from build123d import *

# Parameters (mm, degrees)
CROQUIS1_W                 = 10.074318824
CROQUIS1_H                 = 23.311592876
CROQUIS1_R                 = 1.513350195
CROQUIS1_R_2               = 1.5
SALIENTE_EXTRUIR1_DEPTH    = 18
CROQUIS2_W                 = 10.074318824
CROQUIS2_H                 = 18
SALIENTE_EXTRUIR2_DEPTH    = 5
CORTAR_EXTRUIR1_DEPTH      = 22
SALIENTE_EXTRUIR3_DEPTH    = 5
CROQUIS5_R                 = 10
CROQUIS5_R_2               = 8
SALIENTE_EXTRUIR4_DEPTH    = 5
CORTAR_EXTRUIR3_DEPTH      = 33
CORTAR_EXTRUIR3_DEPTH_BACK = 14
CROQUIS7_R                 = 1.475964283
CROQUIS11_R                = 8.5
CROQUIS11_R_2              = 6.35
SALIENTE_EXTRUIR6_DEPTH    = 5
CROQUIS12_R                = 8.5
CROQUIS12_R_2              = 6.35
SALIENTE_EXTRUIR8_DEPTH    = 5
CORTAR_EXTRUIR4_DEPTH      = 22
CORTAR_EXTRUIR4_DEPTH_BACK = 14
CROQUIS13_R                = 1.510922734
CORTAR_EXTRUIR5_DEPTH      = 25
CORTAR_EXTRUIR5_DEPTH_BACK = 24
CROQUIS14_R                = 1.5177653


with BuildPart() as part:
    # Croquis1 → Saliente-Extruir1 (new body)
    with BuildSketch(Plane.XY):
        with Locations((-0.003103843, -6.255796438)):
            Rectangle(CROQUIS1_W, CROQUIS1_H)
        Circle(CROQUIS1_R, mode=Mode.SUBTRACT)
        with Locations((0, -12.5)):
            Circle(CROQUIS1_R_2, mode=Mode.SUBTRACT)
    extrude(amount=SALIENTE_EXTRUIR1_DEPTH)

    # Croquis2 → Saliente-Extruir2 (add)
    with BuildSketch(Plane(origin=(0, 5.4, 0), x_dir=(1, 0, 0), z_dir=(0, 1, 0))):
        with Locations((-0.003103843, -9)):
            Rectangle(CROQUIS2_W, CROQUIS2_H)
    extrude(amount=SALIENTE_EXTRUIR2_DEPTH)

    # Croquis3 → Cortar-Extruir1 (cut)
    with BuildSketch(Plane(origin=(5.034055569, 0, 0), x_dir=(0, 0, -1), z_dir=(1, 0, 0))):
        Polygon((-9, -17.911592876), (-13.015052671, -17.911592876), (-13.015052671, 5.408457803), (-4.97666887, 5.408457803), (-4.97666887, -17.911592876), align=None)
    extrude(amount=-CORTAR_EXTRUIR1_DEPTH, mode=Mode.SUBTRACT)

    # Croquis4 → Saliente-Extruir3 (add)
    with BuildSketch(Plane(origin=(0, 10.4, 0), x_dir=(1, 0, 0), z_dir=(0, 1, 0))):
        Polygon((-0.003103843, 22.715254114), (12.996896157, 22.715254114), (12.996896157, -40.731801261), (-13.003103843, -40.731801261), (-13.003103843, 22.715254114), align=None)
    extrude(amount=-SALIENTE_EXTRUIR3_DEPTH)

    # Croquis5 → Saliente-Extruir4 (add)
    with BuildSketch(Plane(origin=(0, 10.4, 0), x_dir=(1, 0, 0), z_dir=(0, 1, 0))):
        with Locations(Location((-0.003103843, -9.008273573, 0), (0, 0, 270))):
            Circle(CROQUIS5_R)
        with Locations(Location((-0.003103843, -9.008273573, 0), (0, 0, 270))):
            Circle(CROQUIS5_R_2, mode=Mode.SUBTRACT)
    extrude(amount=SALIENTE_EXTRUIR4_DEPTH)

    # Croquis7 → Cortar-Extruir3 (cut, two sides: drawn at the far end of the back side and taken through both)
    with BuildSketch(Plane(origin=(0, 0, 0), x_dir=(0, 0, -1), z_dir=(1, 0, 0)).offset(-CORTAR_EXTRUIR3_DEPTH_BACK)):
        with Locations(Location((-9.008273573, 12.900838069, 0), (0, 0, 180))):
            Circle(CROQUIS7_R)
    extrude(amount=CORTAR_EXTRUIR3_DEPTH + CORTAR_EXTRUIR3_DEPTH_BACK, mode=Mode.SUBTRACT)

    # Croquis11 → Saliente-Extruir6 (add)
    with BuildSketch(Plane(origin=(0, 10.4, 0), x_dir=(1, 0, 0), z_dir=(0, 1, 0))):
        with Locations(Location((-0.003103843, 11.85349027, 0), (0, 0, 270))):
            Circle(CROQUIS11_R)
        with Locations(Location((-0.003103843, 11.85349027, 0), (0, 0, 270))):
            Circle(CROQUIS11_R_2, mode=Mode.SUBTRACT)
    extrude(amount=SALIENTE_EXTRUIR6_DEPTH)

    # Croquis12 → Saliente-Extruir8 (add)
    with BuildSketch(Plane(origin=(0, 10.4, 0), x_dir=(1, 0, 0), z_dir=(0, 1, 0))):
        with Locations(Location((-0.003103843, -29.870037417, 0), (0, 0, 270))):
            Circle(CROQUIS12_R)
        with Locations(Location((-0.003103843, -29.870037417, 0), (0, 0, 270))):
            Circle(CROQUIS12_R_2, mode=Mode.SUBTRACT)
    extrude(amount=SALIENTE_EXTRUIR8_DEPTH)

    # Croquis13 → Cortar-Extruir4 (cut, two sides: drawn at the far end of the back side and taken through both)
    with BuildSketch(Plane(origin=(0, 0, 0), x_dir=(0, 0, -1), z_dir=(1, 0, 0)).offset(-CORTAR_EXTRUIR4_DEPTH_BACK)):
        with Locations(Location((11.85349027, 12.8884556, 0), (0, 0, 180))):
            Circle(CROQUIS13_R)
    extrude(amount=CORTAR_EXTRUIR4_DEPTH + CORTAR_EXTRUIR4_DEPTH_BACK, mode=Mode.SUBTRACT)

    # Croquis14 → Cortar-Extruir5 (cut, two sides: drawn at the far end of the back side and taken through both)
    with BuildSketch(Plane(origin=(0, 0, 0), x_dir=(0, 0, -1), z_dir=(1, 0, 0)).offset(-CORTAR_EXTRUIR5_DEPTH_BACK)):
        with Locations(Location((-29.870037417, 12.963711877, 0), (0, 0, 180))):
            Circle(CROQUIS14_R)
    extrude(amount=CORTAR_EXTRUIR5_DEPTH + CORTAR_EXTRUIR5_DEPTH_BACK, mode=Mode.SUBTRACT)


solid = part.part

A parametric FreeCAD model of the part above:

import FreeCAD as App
import Part
import Sketcher
from FreeCAD import Vector


def add_polygon(sketch, points):
    """Adds a closed chain of lines whose ends are joined by coincident constraints."""
    first, n = sketch.GeometryCount, len(points)
    for a, b in zip(points, points[1:] + points[:1]):
        sketch.addGeometry(Part.LineSegment(App.Vector(*a, 0), App.Vector(*b, 0)), False)
    for i in range(n):
        sketch.addConstraint(Sketcher.Constraint("Coincident", first + i, 2, first + (i + 1) % n, 1))

doc = App.newDocument("Part")
params = doc.addObject("Spreadsheet::Sheet", "Params")
for row, (alias, value) in enumerate([
    ("sketch1_diameter", "3 mm"),
    ("pad1_length", "18 mm"),
    ("sketch2_height", "18 mm"),
    ("pad2_length", "5 mm"),
    ("pocket1_length", "22 mm"),
    ("sketch4_width", "26 mm"),
    ("pad3_length", "5 mm"),
    ("sketch5_diameter", "20 mm"),
    ("sketch5_diameter2", "16 mm"),
    ("pad4_length", "5 mm"),
    ("sketch7_diameter", "17 mm"),
    ("sketch7_diameter2", "12.7 mm"),
    ("pad5_length", "5 mm"),
    ("sketch8_diameter", "17 mm"),
    ("sketch8_diameter2", "12.7 mm"),
    ("pad6_length", "5 mm"),
], start=1):
    params.set(f"A{row}", alias)
    params.set(f"B{row}", "=" + value)
    params.setAlias(f"B{row}", alias)

body = doc.addObject("PartDesign::Body", "Body")

sketch1 = body.newObject("Sketcher::SketchObject", "Sketch")
sketch1.AttachmentSupport = (doc.getObject("XY_Plane"), [""])
sketch1.MapMode = "FlatFace"
add_polygon(sketch1, [(-5.040263, 5.4), (-5.040263, -17.911593), (5.034056, -17.911593), (5.034056, 5.4)])
sketch1.addGeometry(Part.Circle(Vector(0, -12.5, 0), Vector(0, 0, 1), 1.5), False)
sketch1.addGeometry(Part.Circle(Vector(0, 0, 0), Vector(0, 0, 1), 1.51335), False)
sketch1.addConstraint(Sketcher.Constraint("Vertical", 0))
sketch1.addConstraint(Sketcher.Constraint("Horizontal", 1))
sketch1.addConstraint(Sketcher.Constraint("Vertical", 2))
sketch1.addConstraint(Sketcher.Constraint("Horizontal", 3))
sketch1.addConstraint(Sketcher.Constraint("Coincident", 5, 3, -1, 1))
sketch1.addConstraint(Sketcher.Constraint("PointOnObject", 4, 3, -2))
sketch1.addConstraint(Sketcher.Constraint("Diameter", 4, 3.0))
sketch1.addConstraint(Sketcher.Constraint("Diameter", 5, 3.0267))
sketch1.addConstraint(Sketcher.Constraint("DistanceY", 4, 3, -1, 1, 12.5))
sketch1.addConstraint(Sketcher.Constraint("DistanceY", -1, 1, 2, 2, 5.4))
sketch1.addConstraint(Sketcher.Constraint("DistanceX", 1, 1, 1, 2, 10.074319))
sketch1.addConstraint(Sketcher.Constraint("DistanceY", 0, 2, 0, 1, 23.311593))
sketch1.addConstraint(Sketcher.Constraint("DistanceX", 0, 2, -1, 1, 5.040263))
sketch1.setExpression("Constraints[10]", "Params.sketch1_diameter")
pad1 = body.newObject("PartDesign::Pad", "Pad")
pad1.Profile = sketch1
pad1.setExpression("Length", "Params.pad1_length")

sketch2 = body.newObject("Sketcher::SketchObject", "Sketch001")
sketch2.AttachmentSupport = (doc.getObject("XZ_Plane"), [""])
sketch2.MapMode = "FlatFace"
sketch2.AttachmentOffset = App.Placement(Vector(0, 0, -5.4), App.Rotation())
add_polygon(sketch2, [(-5.040263, 0), (-5.040263, 18), (5.034056, 18), (5.034056, 0)])
sketch2.addConstraint(Sketcher.Constraint("Vertical", 0))
sketch2.addConstraint(Sketcher.Constraint("Horizontal", 1))
sketch2.addConstraint(Sketcher.Constraint("Vertical", 2))
sketch2.addConstraint(Sketcher.Constraint("Horizontal", 3))
sketch2.addConstraint(Sketcher.Constraint("PointOnObject", 2, 2, -1))
sketch2.addConstraint(Sketcher.Constraint("DistanceY", 0, 1, 0, 2, 18.0))
sketch2.addConstraint(Sketcher.Constraint("DistanceX", 1, 1, 1, 2, 10.074319))
sketch2.addConstraint(Sketcher.Constraint("DistanceX", 0, 2, -1, 1, 5.040263))
sketch2.setExpression("Constraints[9]", "Params.sketch2_height")
pad2 = body.newObject("PartDesign::Pad", "Pad001")
pad2.Profile = sketch2
pad2.setExpression("Length", "Params.pad2_length")
pad2.Reversed = True

sketch3 = body.newObject("Sketcher::SketchObject", "Sketch002")
sketch3.AttachmentSupport = (doc.getObject("YZ_Plane"), [""])
sketch3.MapMode = "FlatFace"
sketch3.AttachmentOffset = App.Placement(Vector(0, 0, 5.034056), App.Rotation())
add_polygon(sketch3, [(-17.911593, 13.015053), (-17.911593, 4.976669), (5.408458, 4.976669), (5.408458, 13.015053)])
sketch3.addConstraint(Sketcher.Constraint("Vertical", 0))
sketch3.addConstraint(Sketcher.Constraint("Horizontal", 1))
sketch3.addConstraint(Sketcher.Constraint("Vertical", 2))
sketch3.addConstraint(Sketcher.Constraint("Horizontal", 3))
sketch3.addConstraint(Sketcher.Constraint("DistanceX", 1, 1, 1, 2, 23.320051))
sketch3.addConstraint(Sketcher.Constraint("DistanceY", 0, 2, 0, 1, 8.038384))
sketch3.addConstraint(Sketcher.Constraint("DistanceY", -1, 1, 0, 2, 4.976669))
sketch3.addConstraint(Sketcher.Constraint("DistanceX", 0, 2, -1, 1, 17.911593))
pocket1 = body.newObject("PartDesign::Pocket", "Pocket")
pocket1.Profile = sketch3
pocket1.setExpression("Length", "Params.pocket1_length")

sketch4 = body.newObject("Sketcher::SketchObject", "Sketch003")
sketch4.AttachmentSupport = (doc.getObject("XZ_Plane"), [""])
sketch4.MapMode = "FlatFace"
sketch4.AttachmentOffset = App.Placement(Vector(0, 0, -10.4), App.Rotation())
add_polygon(sketch4, [(12.996896, -22.715254), (-13.003104, -22.715254), (-13.003104, 40.731801), (12.996896, 40.731801)])
sketch4.addConstraint(Sketcher.Constraint("Horizontal", 0))
sketch4.addConstraint(Sketcher.Constraint("Vertical", 1))
sketch4.addConstraint(Sketcher.Constraint("Horizontal", 2))
sketch4.addConstraint(Sketcher.Constraint("Vertical", 3))
sketch4.addConstraint(Sketcher.Constraint("DistanceX", 0, 2, 0, 1, 26.0))
sketch4.addConstraint(Sketcher.Constraint("DistanceY", -1, 1, 1, 2, 40.731801))
sketch4.addConstraint(Sketcher.Constraint("DistanceY", 1, 1, 1, 2, 63.447055))
sketch4.addConstraint(Sketcher.Constraint("DistanceX", 0, 2, -1, 1, 13.003104))
sketch4.setExpression("Constraints[8]", "Params.sketch4_width")
pad3 = body.newObject("PartDesign::Pad", "Pad002")
pad3.Profile = sketch4
pad3.setExpression("Length", "Params.pad3_length")

sketch5 = body.newObject("Sketcher::SketchObject", "Sketch004")
sketch5.AttachmentSupport = (doc.getObject("XZ_Plane"), [""])
sketch5.MapMode = "FlatFace"
sketch5.AttachmentOffset = App.Placement(Vector(0, 0, -10.4), App.Rotation())
sketch5.addGeometry(Part.Circle(Vector(-0.003104, 9.008274, 0), Vector(0, 0, 1), 10), False)
sketch5.addGeometry(Part.Circle(Vector(-0.003104, 9.008274, 0), Vector(0, 0, 1), 8), False)
sketch5.addConstraint(Sketcher.Constraint("Coincident", 1, 3, 0, 3))
sketch5.addConstraint(Sketcher.Constraint("Diameter", 0, 20.0))
sketch5.addConstraint(Sketcher.Constraint("Diameter", 1, 16.0))
sketch5.addConstraint(Sketcher.Constraint("DistanceX", 0, 3, -1, 1, 0.003104))
sketch5.addConstraint(Sketcher.Constraint("DistanceY", -1, 1, 0, 3, 9.008274))
sketch5.setExpression("Constraints[1]", "Params.sketch5_diameter")
sketch5.setExpression("Constraints[2]", "Params.sketch5_diameter2")
pad4 = body.newObject("PartDesign::Pad", "Pad003")
pad4.Profile = sketch5
pad4.setExpression("Length", "Params.pad4_length")
pad4.Reversed = True

sketch6 = body.newObject("Sketcher::SketchObject", "Sketch005")
sketch6.AttachmentSupport = (doc.getObject("YZ_Plane"), [""])
sketch6.MapMode = "FlatFace"
sketch6.addGeometry(Part.Circle(Vector(12.900838, 9.008274, 0), Vector(0, 0, 1), 1.475964), False)
sketch6.addConstraint(Sketcher.Constraint("Diameter", 0, 2.951929))
sketch6.addConstraint(Sketcher.Constraint("DistanceX", -1, 1, 0, 3, 12.900838))
sketch6.addConstraint(Sketcher.Constraint("DistanceY", -1, 1, 0, 3, 9.008274))
pocket2 = body.newObject("PartDesign::Pocket", "Pocket001")
pocket2.Profile = sketch6
pocket2.Type = "ThroughAll"
pocket2.Midplane = True

sketch7 = body.newObject("Sketcher::SketchObject", "Sketch006")
sketch7.AttachmentSupport = (doc.getObject("XZ_Plane"), [""])
sketch7.MapMode = "FlatFace"
sketch7.AttachmentOffset = App.Placement(Vector(0, 0, -10.4), App.Rotation())
sketch7.addGeometry(Part.Circle(Vector(-0.003104, -11.85349, 0), Vector(0, 0, 1), 8.5), False)
sketch7.addGeometry(Part.Circle(Vector(-0.003104, -11.85349, 0), Vector(0, 0, 1), 6.35), False)
sketch7.addConstraint(Sketcher.Constraint("Coincident", 1, 3, 0, 3))
sketch7.addConstraint(Sketcher.Constraint("Diameter", 0, 17.0))
sketch7.addConstraint(Sketcher.Constraint("Diameter", 1, 12.7))
sketch7.addConstraint(Sketcher.Constraint("DistanceY", 0, 3, -1, 1, 11.85349))
sketch7.addConstraint(Sketcher.Constraint("DistanceX", 0, 3, -1, 1, 0.003104))
sketch7.setExpression("Constraints[1]", "Params.sketch7_diameter")
sketch7.setExpression("Constraints[2]", "Params.sketch7_diameter2")
pad5 = body.newObject("PartDesign::Pad", "Pad004")
pad5.Profile = sketch7
pad5.setExpression("Length", "Params.pad5_length")
pad5.Reversed = True

sketch8 = body.newObject("Sketcher::SketchObject", "Sketch007")
sketch8.AttachmentSupport = (doc.getObject("XZ_Plane"), [""])
sketch8.MapMode = "FlatFace"
sketch8.AttachmentOffset = App.Placement(Vector(0, 0, -10.4), App.Rotation())
sketch8.addGeometry(Part.Circle(Vector(-0.003104, 29.870037, 0), Vector(0, 0, 1), 8.5), False)
sketch8.addGeometry(Part.Circle(Vector(-0.003104, 29.870037, 0), Vector(0, 0, 1), 6.35), False)
sketch8.addConstraint(Sketcher.Constraint("Coincident", 1, 3, 0, 3))
sketch8.addConstraint(Sketcher.Constraint("Diameter", 0, 17.0))
sketch8.addConstraint(Sketcher.Constraint("Diameter", 1, 12.7))
sketch8.addConstraint(Sketcher.Constraint("DistanceX", 0, 3, -1, 1, 0.003104))
sketch8.addConstraint(Sketcher.Constraint("DistanceY", -1, 1, 0, 3, 29.870037))
sketch8.setExpression("Constraints[1]", "Params.sketch8_diameter")
sketch8.setExpression("Constraints[2]", "Params.sketch8_diameter2")
pad6 = body.newObject("PartDesign::Pad", "Pad005")
pad6.Profile = sketch8
pad6.setExpression("Length", "Params.pad6_length")
pad6.Reversed = True

sketch9 = body.newObject("Sketcher::SketchObject", "Sketch008")
sketch9.AttachmentSupport = (doc.getObject("YZ_Plane"), [""])
sketch9.MapMode = "FlatFace"
sketch9.addGeometry(Part.Circle(Vector(12.888456, -11.85349, 0), Vector(0, 0, 1), 1.510923), False)
sketch9.addConstraint(Sketcher.Constraint("Diameter", 0, 3.021845))
sketch9.addConstraint(Sketcher.Constraint("DistanceY", 0, 3, -1, 1, 11.85349))
sketch9.addConstraint(Sketcher.Constraint("DistanceX", -1, 1, 0, 3, 12.888456))
pocket3 = body.newObject("PartDesign::Pocket", "Pocket002")
pocket3.Profile = sketch9
pocket3.Type = "ThroughAll"
pocket3.Midplane = True

sketch10 = body.newObject("Sketcher::SketchObject", "Sketch009")
sketch10.AttachmentSupport = (doc.getObject("YZ_Plane"), [""])
sketch10.MapMode = "FlatFace"
sketch10.addGeometry(Part.Circle(Vector(12.963712, 29.870037, 0), Vector(0, 0, 1), 1.517765), False)
sketch10.addConstraint(Sketcher.Constraint("Diameter", 0, 3.035531))
sketch10.addConstraint(Sketcher.Constraint("DistanceX", -1, 1, 0, 3, 12.963712))
sketch10.addConstraint(Sketcher.Constraint("DistanceY", -1, 1, 0, 3, 29.870037))
pocket4 = body.newObject("PartDesign::Pocket", "Pocket003")
pocket4.Profile = sketch10
pocket4.Type = "ThroughAll"
pocket4.Midplane = True

doc.recompute()
